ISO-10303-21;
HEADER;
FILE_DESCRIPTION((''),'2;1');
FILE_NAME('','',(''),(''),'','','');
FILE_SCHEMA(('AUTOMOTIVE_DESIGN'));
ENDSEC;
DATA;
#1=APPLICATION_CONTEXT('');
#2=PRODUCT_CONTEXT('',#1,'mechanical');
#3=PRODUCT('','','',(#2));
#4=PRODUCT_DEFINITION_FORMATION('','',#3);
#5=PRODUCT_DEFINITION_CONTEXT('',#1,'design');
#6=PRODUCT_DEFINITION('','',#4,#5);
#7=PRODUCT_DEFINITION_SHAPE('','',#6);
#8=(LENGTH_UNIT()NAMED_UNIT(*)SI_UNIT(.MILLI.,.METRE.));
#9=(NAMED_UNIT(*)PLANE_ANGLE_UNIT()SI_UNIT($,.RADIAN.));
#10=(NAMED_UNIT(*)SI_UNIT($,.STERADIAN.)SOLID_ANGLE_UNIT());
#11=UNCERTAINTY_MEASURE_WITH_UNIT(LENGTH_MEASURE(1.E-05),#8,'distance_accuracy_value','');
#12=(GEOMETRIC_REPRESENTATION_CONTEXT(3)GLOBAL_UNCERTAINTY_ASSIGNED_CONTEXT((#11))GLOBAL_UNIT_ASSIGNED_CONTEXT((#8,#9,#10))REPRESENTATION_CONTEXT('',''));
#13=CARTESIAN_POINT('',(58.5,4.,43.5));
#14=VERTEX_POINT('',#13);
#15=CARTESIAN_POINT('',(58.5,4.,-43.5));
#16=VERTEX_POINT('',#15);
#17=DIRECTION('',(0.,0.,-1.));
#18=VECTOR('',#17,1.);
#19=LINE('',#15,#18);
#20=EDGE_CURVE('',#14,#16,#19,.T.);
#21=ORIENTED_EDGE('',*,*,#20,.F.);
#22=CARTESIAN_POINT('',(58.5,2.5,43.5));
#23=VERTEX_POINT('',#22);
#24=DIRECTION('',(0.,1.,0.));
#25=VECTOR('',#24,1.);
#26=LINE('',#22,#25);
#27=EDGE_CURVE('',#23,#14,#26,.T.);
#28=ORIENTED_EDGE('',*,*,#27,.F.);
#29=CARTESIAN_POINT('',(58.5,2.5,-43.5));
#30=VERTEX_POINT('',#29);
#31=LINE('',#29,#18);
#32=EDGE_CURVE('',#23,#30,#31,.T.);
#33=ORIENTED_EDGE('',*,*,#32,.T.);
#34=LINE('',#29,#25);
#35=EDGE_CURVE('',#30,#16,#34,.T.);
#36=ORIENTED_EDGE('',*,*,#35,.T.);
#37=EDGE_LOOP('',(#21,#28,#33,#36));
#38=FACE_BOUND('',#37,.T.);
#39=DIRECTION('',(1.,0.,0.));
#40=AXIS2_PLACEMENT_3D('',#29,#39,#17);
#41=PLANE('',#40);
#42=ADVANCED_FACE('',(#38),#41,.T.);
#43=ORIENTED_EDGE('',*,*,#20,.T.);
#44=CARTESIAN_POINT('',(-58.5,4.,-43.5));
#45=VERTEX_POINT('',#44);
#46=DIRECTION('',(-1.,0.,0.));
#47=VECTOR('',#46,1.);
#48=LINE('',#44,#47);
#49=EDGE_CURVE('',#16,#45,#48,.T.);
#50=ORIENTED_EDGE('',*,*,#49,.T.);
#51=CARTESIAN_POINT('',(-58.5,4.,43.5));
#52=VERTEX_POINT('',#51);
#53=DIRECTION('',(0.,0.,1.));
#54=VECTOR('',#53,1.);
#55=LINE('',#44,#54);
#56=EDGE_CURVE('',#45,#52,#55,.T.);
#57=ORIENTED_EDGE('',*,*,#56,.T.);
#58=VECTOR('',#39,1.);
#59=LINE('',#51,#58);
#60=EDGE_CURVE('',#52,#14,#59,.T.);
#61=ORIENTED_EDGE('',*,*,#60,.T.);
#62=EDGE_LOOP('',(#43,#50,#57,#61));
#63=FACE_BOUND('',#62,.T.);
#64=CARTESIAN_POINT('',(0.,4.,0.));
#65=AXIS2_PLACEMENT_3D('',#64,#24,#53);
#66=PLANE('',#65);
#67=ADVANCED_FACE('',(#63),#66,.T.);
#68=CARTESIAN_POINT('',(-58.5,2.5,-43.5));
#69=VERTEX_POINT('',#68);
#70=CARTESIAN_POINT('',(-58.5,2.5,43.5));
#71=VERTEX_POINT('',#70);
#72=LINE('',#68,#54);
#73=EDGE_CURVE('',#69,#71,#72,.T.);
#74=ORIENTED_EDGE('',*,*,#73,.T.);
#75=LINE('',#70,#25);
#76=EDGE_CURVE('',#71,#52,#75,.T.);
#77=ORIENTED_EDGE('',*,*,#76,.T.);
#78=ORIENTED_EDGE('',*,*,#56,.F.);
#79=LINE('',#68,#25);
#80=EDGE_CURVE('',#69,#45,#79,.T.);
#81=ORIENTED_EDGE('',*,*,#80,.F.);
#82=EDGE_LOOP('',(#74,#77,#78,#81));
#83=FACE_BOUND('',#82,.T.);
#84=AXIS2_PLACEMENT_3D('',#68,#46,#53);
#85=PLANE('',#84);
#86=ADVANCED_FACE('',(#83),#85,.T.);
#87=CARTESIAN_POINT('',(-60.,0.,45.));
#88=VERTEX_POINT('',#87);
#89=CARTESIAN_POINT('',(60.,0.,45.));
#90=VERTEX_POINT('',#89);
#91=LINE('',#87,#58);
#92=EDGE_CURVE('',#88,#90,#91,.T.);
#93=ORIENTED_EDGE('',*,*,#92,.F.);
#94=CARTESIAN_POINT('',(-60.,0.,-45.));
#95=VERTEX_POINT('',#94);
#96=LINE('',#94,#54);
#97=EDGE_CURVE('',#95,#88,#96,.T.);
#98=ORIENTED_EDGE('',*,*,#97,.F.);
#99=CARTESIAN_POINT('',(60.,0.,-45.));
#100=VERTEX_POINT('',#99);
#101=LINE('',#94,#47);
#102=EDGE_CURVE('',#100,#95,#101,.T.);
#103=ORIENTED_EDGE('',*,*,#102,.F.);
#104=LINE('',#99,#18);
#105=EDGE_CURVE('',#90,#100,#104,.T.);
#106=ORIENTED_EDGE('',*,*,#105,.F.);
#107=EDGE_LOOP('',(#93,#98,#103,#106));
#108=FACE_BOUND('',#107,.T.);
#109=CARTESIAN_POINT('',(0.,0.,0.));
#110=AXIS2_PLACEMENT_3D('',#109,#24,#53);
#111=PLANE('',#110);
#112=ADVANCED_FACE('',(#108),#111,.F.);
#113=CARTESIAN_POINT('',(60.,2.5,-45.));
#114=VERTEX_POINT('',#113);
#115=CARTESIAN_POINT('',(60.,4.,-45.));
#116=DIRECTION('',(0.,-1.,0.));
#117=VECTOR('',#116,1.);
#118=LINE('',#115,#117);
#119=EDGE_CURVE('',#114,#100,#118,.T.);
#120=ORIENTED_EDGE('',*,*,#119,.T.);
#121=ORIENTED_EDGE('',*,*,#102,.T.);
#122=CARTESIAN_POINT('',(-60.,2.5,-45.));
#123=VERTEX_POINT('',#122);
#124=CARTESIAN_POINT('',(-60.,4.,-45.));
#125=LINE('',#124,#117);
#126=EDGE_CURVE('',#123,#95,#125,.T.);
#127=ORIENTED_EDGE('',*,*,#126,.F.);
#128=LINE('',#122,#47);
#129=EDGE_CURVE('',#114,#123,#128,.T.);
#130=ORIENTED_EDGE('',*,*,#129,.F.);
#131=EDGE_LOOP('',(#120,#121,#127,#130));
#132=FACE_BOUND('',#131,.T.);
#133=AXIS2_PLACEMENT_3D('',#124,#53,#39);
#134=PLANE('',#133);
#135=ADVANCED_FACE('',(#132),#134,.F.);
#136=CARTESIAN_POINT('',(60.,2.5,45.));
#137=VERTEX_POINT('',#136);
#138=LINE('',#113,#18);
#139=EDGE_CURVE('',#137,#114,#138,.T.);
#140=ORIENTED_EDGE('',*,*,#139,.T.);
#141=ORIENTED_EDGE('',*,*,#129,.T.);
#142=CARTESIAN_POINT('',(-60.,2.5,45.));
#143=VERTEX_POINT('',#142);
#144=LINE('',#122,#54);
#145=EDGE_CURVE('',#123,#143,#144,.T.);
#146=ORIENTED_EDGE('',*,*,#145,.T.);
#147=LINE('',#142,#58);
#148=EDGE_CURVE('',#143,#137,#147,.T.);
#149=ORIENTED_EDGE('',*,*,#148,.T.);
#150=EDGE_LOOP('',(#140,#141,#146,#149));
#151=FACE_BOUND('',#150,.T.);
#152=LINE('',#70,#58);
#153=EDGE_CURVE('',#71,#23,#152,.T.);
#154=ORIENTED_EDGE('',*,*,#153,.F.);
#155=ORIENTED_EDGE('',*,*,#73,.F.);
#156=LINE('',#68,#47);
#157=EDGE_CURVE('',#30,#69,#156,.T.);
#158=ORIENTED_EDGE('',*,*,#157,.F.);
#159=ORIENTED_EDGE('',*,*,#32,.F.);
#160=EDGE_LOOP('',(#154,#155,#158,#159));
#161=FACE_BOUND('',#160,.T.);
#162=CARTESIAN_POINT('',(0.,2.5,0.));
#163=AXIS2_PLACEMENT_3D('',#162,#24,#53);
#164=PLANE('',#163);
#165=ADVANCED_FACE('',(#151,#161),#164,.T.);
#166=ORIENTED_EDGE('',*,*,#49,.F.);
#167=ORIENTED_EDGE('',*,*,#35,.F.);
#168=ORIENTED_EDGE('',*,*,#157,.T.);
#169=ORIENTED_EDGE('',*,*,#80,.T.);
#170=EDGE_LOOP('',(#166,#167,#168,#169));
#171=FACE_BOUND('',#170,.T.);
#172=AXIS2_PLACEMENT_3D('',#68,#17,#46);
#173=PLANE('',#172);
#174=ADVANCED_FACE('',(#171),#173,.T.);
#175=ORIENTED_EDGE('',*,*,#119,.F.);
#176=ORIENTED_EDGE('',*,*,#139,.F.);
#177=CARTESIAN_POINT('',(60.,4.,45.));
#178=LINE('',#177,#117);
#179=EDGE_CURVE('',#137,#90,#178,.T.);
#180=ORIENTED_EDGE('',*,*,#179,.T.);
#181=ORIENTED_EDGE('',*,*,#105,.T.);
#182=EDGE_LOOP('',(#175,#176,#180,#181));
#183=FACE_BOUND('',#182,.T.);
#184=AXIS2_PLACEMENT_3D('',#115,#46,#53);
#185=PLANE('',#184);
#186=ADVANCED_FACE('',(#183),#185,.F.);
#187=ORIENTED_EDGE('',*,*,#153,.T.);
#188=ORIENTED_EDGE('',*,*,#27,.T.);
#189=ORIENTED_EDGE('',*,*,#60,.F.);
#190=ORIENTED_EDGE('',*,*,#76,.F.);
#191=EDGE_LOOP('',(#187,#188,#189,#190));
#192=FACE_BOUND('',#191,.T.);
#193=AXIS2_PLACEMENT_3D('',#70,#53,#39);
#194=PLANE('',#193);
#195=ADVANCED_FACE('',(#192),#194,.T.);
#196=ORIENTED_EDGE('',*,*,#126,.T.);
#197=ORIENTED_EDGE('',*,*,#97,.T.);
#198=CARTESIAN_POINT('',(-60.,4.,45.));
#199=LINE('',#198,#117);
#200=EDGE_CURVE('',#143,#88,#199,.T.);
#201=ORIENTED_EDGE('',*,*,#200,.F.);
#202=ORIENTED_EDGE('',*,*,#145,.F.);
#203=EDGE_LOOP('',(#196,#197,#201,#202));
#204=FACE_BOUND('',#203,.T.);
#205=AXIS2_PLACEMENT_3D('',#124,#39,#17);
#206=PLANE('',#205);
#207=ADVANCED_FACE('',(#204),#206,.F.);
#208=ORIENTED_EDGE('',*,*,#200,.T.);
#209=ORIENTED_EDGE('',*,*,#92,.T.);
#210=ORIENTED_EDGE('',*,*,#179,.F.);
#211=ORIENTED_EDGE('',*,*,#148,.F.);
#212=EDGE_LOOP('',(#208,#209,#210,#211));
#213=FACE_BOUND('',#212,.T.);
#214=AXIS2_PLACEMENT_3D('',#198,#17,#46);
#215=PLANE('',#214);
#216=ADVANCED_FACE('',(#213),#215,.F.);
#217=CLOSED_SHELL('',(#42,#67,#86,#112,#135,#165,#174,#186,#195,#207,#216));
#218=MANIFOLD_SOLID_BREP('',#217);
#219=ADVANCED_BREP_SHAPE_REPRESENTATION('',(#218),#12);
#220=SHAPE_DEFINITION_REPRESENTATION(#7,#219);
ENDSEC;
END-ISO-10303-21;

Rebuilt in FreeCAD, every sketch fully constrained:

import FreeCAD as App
import Part
import Sketcher
Q = App.Units.Quantity

doc = App.newDocument("Part")
params = doc.addObject("Spreadsheet::Sheet", "Params")
for row, (alias, value) in enumerate([
    ("sketch1_width", "120 mm"),
    ("sketch1_height", "90 mm"),
    ("pad1_length", "4 mm"),
    ("sketch2_width", "117 mm"),
    ("sketch2_height", "87 mm"),
    ("sketch2_width2", "152.01 mm"),
    ("sketch2_height2", "122.01 mm"),
    ("pocket1_length", "1.5 mm"),
], start=1):
    params.set(f"A{row}", alias)
    params.set(f"B{row}", "=" + value)
    params.setAlias(f"B{row}", alias)

body = doc.addObject("PartDesign::Body", "Body")

sketch1 = body.newObject("Sketcher::SketchObject", "Sketch")
sketch1.AttachmentSupport = (doc.getObject("XZ_Plane"), [""])
sketch1.MapMode = "FlatFace"
sketch1.addGeometry(Part.LineSegment(App.Vector(-60, -45, 0), App.Vector(-60, 45, 0)), False)
sketch1.addGeometry(Part.LineSegment(App.Vector(-60, 45, 0), App.Vector(60, 45, 0)), False)
sketch1.addGeometry(Part.LineSegment(App.Vector(60, 45, 0), App.Vector(60, -45, 0)), False)
sketch1.addGeometry(Part.LineSegment(App.Vector(60, -45, 0), App.Vector(-60, -45, 0)), False)
sketch1.addConstraint(Sketcher.Constraint("Coincident", 0, 2, 1, 1))
sketch1.addConstraint(Sketcher.Constraint("Coincident", 1, 2, 2, 1))
sketch1.addConstraint(Sketcher.Constraint("Coincident", 2, 2, 3, 1))
sketch1.addConstraint(Sketcher.Constraint("Coincident", 3, 2, 0, 1))
sketch1.addConstraint(Sketcher.Constraint("Vertical", 0))
sketch1.addConstraint(Sketcher.Constraint("Horizontal", 1))
sketch1.addConstraint(Sketcher.Constraint("Vertical", 2))
sketch1.addConstraint(Sketcher.Constraint("Horizontal", 3))
sketch1.addConstraint(Sketcher.Constraint("Symmetric", 0, 2, 2, 2, -1, 1))
sketch1.addConstraint(Sketcher.Constraint("DistanceX", 1, 1, 1, 2, Q("120 mm")))
sketch1.addConstraint(Sketcher.Constraint("DistanceY", 0, 1, 0, 2, Q("90 mm")))
sketch1.setExpression("Constraints[9]", "Params.sketch1_width")
sketch1.setExpression("Constraints[10]", "Params.sketch1_height")
pad1 = body.newObject("PartDesign::Pad", "Pad")
pad1.Profile = sketch1
pad1.setExpression("Length", "Params.pad1_length")
pad1.Reversed = True

sketch2 = body.newObject("Sketcher::SketchObject", "Sketch001")
sketch2.AttachmentSupport = (doc.getObject("XZ_Plane"), [""])
sketch2.MapMode = "FlatFace"
sketch2.AttachmentOffset = App.Placement(App.Vector(0, 0, -4), App.Rotation())
sketch2.addGeometry(Part.LineSegment(App.Vector(-76, -61, 0), App.Vector(-76, 61, 0)), False)
sketch2.addGeometry(Part.LineSegment(App.Vector(-76, 61, 0), App.Vector(76, 61, 0)), False)
sketch2.addGeometry(Part.LineSegment(App.Vector(76, 61, 0), App.Vector(76, -61, 0)), False)
sketch2.addGeometry(Part.LineSegment(App.Vector(76, -61, 0), App.Vector(-76, -61, 0)), False)
sketch2.addGeometry(Part.LineSegment(App.Vector(58, 44, 0), App.Vector(-58, 44, 0)), False)
sketch2.addGeometry(Part.LineSegment(App.Vector(-58, 44, 0), App.Vector(-58, -44, 0)), False)
sketch2.addGeometry(Part.LineSegment(App.Vector(-58, -44, 0), App.Vector(58, -44, 0)), False)
sketch2.addGeometry(Part.LineSegment(App.Vector(58, -44, 0), App.Vector(58, 44, 0)), False)
sketch2.addConstraint(Sketcher.Constraint("Coincident", 0, 2, 1, 1))
sketch2.addConstraint(Sketcher.Constraint("Coincident", 1, 2, 2, 1))
sketch2.addConstraint(Sketcher.Constraint("Coincident", 2, 2, 3, 1))
sketch2.addConstraint(Sketcher.Constraint("Coincident", 3, 2, 0, 1))
sketch2.addConstraint(Sketcher.Constraint("Coincident", 4, 2, 5, 1))
sketch2.addConstraint(Sketcher.Constraint("Coincident", 5, 2, 6, 1))
sketch2.addConstraint(Sketcher.Constraint("Coincident", 6, 2, 7, 1))
sketch2.addConstraint(Sketcher.Constraint("Coincident", 7, 2, 4, 1))
sketch2.addConstraint(Sketcher.Constraint("Vertical", 0))
sketch2.addConstraint(Sketcher.Constraint("Horizontal", 1))
sketch2.addConstraint(Sketcher.Constraint("Vertical", 2))
sketch2.addConstraint(Sketcher.Constraint("Horizontal", 3))
sketch2.addConstraint(Sketcher.Constraint("Horizontal", 4))
sketch2.addConstraint(Sketcher.Constraint("Vertical", 5))
sketch2.addConstraint(Sketcher.Constraint("Horizontal", 6))
sketch2.addConstraint(Sketcher.Constraint("Vertical", 7))
sketch2.addConstraint(Sketcher.Constraint("Symmetric", 0, 2, 2, 2, -1, 1))
sketch2.addConstraint(Sketcher.Constraint("Symmetric", 4, 2, 6, 2, -1, 1))
sketch2.addConstraint(Sketcher.Constraint("DistanceX", 4, 2, 4, 1, Q("117 mm")))
sketch2.addConstraint(Sketcher.Constraint("DistanceY", 5, 2, 5, 1, Q("87 mm")))
sketch2.addConstraint(Sketcher.Constraint("DistanceX", 1, 1, 1, 2, Q("152.01 mm")))
sketch2.addConstraint(Sketcher.Constraint("DistanceY", 0, 1, 0, 2, Q("122.01 mm")))
sketch2.setExpression("Constraints[18]", "Params.sketch2_width")
sketch2.setExpression("Constraints[19]", "Params.sketch2_height")
sketch2.setExpression("Constraints[20]", "Params.sketch2_width2")
sketch2.setExpression("Constraints[21]", "Params.sketch2_height2")
pocket1 = body.newObject("PartDesign::Pocket", "Pocket")
pocket1.Profile = sketch2
pocket1.setExpression("Length", "Params.pocket1_length")
pocket1.Reversed = True

doc.recompute()
